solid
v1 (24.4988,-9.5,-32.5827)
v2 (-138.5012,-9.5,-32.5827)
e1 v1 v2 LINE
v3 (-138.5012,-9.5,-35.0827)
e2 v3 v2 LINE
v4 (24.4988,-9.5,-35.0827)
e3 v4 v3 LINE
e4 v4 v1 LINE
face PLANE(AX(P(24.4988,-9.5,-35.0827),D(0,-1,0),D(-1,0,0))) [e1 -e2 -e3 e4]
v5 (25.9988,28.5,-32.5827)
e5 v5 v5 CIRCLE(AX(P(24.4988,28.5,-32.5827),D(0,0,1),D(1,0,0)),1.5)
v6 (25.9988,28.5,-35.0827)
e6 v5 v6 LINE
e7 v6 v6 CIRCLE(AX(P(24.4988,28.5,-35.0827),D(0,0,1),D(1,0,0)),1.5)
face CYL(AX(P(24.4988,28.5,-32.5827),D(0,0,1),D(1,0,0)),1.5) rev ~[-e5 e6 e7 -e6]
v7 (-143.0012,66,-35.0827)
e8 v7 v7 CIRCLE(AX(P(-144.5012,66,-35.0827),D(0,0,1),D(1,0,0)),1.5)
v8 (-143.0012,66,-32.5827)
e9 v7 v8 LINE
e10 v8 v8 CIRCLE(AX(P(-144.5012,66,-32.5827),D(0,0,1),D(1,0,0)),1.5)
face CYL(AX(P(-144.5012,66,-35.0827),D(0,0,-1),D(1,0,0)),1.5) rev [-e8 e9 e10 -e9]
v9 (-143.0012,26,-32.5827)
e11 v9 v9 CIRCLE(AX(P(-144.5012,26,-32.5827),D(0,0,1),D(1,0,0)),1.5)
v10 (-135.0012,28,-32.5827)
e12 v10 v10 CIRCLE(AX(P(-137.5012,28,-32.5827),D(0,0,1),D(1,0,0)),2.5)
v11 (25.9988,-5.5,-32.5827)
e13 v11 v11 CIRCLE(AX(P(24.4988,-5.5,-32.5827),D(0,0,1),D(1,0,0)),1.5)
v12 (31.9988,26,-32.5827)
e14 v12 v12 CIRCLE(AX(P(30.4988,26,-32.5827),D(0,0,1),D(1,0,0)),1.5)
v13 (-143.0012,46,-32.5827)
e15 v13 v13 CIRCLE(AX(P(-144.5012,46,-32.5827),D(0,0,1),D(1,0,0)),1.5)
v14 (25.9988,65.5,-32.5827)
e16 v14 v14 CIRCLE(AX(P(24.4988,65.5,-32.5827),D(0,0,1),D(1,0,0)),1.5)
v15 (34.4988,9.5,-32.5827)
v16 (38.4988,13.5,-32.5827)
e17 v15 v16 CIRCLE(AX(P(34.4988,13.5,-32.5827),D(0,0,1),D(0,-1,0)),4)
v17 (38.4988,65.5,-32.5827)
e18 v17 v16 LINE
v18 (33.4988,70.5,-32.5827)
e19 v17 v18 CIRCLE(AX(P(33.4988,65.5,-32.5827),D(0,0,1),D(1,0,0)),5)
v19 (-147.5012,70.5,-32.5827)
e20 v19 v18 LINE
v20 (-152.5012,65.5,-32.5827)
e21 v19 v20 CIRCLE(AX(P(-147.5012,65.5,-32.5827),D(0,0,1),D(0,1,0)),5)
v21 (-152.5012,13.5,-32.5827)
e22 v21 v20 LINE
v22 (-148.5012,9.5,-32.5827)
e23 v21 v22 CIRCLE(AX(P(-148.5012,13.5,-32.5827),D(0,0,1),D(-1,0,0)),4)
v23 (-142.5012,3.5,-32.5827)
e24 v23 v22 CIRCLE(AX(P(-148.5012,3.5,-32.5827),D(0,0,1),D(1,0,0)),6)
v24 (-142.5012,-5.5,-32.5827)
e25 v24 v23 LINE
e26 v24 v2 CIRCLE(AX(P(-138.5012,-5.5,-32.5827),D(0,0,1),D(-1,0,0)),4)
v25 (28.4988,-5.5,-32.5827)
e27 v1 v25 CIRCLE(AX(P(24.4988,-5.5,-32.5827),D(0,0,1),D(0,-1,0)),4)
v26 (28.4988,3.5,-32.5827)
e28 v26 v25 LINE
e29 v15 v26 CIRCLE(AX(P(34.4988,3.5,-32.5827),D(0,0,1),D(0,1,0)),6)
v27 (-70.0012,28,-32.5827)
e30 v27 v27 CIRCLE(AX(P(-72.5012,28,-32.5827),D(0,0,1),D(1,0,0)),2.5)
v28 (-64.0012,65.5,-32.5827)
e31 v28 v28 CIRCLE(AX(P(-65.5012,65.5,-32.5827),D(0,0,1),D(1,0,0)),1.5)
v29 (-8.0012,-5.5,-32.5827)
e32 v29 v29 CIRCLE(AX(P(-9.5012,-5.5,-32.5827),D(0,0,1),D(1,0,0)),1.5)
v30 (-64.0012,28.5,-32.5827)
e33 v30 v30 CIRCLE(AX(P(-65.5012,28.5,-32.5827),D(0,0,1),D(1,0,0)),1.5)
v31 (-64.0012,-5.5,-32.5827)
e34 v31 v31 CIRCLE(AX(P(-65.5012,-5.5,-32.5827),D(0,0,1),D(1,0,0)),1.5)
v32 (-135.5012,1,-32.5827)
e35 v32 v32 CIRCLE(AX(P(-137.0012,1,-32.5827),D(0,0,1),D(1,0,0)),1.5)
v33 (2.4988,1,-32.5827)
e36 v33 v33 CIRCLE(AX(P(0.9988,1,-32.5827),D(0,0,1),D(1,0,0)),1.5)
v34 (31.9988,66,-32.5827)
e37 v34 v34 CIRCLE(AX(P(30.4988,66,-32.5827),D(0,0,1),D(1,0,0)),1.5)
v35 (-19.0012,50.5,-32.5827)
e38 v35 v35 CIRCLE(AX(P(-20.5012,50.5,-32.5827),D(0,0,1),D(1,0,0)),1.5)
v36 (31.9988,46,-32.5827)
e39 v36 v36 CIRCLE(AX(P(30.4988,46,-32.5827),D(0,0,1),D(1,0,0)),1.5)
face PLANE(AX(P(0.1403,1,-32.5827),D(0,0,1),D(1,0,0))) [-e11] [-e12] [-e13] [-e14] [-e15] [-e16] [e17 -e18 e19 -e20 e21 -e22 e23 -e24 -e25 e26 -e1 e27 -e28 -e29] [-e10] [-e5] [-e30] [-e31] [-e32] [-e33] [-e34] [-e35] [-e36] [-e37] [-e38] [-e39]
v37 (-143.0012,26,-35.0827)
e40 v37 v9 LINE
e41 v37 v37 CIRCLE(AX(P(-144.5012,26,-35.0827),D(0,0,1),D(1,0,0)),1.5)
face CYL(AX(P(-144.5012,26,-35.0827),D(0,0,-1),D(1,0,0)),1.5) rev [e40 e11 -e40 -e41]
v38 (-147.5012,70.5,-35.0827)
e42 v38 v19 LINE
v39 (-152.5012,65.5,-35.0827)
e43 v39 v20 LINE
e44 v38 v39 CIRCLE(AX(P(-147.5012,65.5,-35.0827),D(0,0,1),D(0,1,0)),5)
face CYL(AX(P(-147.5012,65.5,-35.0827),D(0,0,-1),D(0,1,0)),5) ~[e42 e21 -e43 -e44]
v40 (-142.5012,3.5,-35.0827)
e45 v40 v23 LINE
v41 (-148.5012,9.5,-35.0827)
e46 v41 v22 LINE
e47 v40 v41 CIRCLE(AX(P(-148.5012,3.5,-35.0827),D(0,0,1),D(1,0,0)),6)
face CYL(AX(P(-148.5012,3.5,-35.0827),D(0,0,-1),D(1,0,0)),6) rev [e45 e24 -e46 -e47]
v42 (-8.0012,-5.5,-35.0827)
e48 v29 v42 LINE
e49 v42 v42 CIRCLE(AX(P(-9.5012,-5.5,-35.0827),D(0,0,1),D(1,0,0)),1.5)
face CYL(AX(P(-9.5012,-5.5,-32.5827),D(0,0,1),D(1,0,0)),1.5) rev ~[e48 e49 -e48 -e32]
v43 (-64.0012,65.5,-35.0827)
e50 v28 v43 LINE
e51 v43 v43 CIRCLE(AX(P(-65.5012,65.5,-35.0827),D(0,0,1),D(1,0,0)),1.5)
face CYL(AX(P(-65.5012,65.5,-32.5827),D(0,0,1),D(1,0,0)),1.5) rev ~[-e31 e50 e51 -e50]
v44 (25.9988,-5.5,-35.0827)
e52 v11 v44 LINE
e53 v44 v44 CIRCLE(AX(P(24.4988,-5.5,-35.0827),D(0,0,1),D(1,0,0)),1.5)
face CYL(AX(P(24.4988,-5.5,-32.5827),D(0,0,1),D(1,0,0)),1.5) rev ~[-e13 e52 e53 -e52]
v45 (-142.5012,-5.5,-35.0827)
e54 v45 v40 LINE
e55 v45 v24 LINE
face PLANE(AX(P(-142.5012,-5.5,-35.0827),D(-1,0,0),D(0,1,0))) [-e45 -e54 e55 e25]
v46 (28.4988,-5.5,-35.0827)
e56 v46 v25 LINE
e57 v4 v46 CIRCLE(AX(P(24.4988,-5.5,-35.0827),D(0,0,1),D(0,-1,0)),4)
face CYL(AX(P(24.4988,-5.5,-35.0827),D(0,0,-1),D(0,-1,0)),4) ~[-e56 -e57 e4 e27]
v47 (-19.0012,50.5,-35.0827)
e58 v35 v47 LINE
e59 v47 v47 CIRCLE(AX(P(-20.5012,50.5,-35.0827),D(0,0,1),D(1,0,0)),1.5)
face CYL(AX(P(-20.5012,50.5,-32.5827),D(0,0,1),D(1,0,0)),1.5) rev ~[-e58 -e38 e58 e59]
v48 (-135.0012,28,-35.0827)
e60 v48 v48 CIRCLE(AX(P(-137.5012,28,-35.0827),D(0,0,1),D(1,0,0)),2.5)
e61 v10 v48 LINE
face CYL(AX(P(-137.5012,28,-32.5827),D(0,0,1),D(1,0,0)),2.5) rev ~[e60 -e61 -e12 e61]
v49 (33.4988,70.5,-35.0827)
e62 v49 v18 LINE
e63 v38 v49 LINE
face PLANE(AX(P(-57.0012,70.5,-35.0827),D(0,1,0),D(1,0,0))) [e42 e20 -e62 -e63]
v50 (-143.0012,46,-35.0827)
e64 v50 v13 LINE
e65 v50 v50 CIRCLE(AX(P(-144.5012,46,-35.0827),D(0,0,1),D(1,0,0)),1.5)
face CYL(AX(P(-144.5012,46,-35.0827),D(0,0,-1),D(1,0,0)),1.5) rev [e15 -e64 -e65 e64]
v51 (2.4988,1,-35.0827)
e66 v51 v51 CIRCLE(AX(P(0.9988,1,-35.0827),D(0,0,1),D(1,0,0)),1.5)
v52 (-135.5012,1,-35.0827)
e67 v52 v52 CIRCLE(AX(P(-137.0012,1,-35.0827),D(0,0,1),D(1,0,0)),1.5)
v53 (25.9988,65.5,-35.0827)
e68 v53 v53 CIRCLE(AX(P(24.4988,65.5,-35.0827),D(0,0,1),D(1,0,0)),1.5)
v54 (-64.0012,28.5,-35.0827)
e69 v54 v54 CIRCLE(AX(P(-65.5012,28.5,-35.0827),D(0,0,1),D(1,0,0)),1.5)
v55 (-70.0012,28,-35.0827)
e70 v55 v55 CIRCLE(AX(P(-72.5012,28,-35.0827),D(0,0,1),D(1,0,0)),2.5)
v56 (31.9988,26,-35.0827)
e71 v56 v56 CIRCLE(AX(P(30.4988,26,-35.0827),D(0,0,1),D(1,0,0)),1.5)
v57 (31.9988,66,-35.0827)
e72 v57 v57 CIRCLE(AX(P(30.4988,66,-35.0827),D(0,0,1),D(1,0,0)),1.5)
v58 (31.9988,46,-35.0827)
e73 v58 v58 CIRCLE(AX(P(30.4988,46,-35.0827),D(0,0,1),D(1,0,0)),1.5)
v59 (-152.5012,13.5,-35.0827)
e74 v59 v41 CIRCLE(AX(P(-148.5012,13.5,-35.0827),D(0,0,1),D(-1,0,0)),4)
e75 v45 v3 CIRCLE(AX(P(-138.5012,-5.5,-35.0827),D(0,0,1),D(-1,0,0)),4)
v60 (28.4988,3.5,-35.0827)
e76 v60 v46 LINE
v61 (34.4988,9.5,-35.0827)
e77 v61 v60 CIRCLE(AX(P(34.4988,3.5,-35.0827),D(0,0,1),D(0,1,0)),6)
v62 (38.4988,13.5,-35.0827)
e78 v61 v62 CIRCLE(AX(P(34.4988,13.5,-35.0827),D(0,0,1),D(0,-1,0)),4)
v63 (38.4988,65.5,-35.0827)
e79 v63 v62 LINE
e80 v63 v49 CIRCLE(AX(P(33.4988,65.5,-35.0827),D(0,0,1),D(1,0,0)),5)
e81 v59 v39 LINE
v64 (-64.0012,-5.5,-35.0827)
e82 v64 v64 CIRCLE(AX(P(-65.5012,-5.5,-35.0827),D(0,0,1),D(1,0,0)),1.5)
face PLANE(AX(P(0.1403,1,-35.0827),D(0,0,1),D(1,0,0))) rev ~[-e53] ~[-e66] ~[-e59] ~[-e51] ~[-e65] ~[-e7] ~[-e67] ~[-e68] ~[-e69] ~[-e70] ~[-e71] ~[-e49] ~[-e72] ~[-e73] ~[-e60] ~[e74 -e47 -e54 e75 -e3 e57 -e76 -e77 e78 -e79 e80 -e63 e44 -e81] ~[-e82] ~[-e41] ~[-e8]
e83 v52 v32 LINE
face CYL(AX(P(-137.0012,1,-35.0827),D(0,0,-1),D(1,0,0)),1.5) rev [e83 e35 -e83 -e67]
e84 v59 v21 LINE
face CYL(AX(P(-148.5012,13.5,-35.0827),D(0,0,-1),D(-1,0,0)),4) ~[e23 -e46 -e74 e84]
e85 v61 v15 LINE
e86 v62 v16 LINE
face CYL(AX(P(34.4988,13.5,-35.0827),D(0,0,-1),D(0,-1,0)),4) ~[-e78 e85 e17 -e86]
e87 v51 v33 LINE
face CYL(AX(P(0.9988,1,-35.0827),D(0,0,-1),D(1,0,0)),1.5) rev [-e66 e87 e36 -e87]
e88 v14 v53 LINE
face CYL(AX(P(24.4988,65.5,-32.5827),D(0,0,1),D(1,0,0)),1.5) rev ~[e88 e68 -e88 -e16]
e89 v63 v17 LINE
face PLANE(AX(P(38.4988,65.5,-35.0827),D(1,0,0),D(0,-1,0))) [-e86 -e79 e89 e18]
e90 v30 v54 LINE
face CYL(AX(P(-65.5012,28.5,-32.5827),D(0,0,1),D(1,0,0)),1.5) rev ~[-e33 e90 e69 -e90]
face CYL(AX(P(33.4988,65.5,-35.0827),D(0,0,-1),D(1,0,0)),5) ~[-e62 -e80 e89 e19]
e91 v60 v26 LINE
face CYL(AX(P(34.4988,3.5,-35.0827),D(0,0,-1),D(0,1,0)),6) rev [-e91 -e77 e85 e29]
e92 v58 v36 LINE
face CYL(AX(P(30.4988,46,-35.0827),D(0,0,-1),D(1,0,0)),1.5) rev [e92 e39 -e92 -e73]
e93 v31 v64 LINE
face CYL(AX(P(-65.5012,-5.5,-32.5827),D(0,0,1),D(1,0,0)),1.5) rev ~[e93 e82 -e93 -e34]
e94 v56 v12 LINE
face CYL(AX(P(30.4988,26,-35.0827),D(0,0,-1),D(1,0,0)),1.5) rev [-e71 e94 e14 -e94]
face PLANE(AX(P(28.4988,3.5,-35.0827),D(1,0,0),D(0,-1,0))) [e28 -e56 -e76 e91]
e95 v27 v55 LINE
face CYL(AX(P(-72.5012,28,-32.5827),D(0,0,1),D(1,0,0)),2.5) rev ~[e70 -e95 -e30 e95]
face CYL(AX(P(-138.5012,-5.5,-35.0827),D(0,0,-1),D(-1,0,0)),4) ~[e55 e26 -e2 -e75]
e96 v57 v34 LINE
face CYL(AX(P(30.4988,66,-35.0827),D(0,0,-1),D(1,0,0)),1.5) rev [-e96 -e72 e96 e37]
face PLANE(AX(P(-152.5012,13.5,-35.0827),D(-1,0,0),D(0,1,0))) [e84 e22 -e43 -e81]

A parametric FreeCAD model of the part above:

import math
import FreeCAD as App
import Part
import Sketcher

V = App.Vector

doc = App.newDocument("Part")
params = doc.addObject("Spreadsheet::Sheet", "Params")
for row, (alias, value) in enumerate([
    ("sketch1_radius", "5 mm"),
    ("sketch1_diameter", "3 mm"),
    ("sketch1_radius2", "4 mm"),
    ("sketch1_radius3", "6 mm"),
    ("sketch1_width", "181 mm"),
    ("pad1_length", "2.5 mm"),
    ("sketch2_diameter", "5 mm"),
    ("sketch2_diameter2", "3 mm"),
    ("pocket1_length", "10 mm"),
], start=1):
    params.set(f"A{row}", alias)
    params.set(f"B{row}", "=" + value)
    params.setAlias(f"B{row}", alias)

body = doc.addObject("PartDesign::Body", "Body")

# Sketch on XY plane
sketch1 = body.newObject("Sketcher::SketchObject", "Sketch")
sketch1.AttachmentSupport = (doc.getObject("XY_Plane"), [""])
sketch1.MapMode = "FlatFace"
sketch1.AttachmentOffset = App.Placement(V(0, 0, -35.0827), App.Rotation())
sketch1.addGeometry([
    Part.LineSegment(V(33.5, 70.5, 0), V(-147.5, 70.5, 0)),  # 0
    Part.ArcOfCircle(Part.Circle(V(-147.5, 65.5, 0), V(0, 0, 1), 5), math.radians(90), math.radians(180)),  # 1
    Part.LineSegment(V(-152.5, 65.5, 0), V(-152.5, 13.5, 0)),  # 2
    Part.ArcOfCircle(Part.Circle(V(-148.5, 13.5, 0), V(0, 0, 1), 4), math.radians(180), math.radians(270)),  # 3
    Part.ArcOfCircle(Part.Circle(V(-148.5, 3.5, 0), V(0, 0, 1), 6), math.radians(0), math.radians(90)),  # 4
    Part.LineSegment(V(-142.5, 3.5, 0), V(-142.5, -5.5, 0)),  # 5
    Part.ArcOfCircle(Part.Circle(V(-138.5, -5.5, 0), V(0, 0, 1), 4), math.radians(180), math.radians(270)),  # 6
    Part.LineSegment(V(-138.5, -9.5, 0), V(24.5, -9.5, 0)),  # 7
    Part.ArcOfCircle(Part.Circle(V(24.5, -5.5, 0), V(0, 0, 1), 4), math.radians(-90), math.radians(0)),  # 8
    Part.LineSegment(V(28.5, -5.5, 0), V(28.5, 3.5, 0)),  # 9
    Part.ArcOfCircle(Part.Circle(V(34.5, 3.5, 0), V(0, 0, 1), 6), math.radians(90), math.radians(180)),  # 10
    Part.ArcOfCircle(Part.Circle(V(34.5, 13.5, 0), V(0, 0, 1), 4), math.radians(-90), math.radians(0)),  # 11
    Part.LineSegment(V(38.5, 13.5, 0), V(38.5, 65.5, 0)),  # 12
    Part.ArcOfCircle(Part.Circle(V(33.5, 65.5, 0), V(0, 0, 1), 5), math.radians(0), math.radians(90)),  # 13
    Part.Circle(V(1, 1, 0), V(0, 0, 1), 1.5),  # 14
    Part.Circle(V(30.5, 66, 0), V(0, 0, 1), 1.5),  # 15
    Part.Circle(V(30.5, 26, 0), V(0, 0, 1), 1.5),  # 16
    Part.Circle(V(30.5, 46, 0), V(0, 0, 1), 1.5),  # 17
    Part.Circle(V(-144.5, 66, 0), V(0, 0, 1), 1.5),  # 18
    Part.Circle(V(-137, 1, 0), V(0, 0, 1), 1.5),  # 19
    Part.Circle(V(-144.5, 26, 0), V(0, 0, 1), 1.5),  # 20
    Part.Circle(V(-144.5, 46, 0), V(0, 0, 1), 1.5),  # 21
], False)
sketch1.addConstraint([
    Sketcher.Constraint("Tangent", 0, 2, 1, 1),
    Sketcher.Constraint("Tangent", 1, 2, 2, 1),
    Sketcher.Constraint("Tangent", 2, 2, 3, 1),
    Sketcher.Constraint("Tangent", 3, 2, 4, 2),
    Sketcher.Constraint("Tangent", 4, 1, 5, 1),
    Sketcher.Constraint("Tangent", 5, 2, 6, 1),
    Sketcher.Constraint("Tangent", 6, 2, 7, 1),
    Sketcher.Constraint("Tangent", 7, 2, 8, 1),
    Sketcher.Constraint("Tangent", 8, 2, 9, 1),
    Sketcher.Constraint("Tangent", 9, 2, 10, 2),
    Sketcher.Constraint("Tangent", 10, 1, 11, 1),
    Sketcher.Constraint("Tangent", 11, 2, 12, 1),
    Sketcher.Constraint("Tangent", 12, 2, 13, 1),
    Sketcher.Constraint("Tangent", 13, 2, 0, 1),
    Sketcher.Constraint("Horizontal", 0),
    Sketcher.Constraint("Vertical", 2),
    Sketcher.Constraint("Vertical", 5),
    Sketcher.Constraint("Horizontal", 7),
    Sketcher.Constraint("Vertical", 9),
    Sketcher.Constraint("Vertical", 12),
    Sketcher.Constraint("Equal", 3, 6),
    Sketcher.Constraint("Equal", 6, 8),
    Sketcher.Constraint("Equal", 4, 10),
    Sketcher.Constraint("Equal", 8, 11),
    Sketcher.Constraint("Equal", 1, 13),
    Sketcher.Constraint("Equal", 14, 15),
    Sketcher.Constraint("Equal", 15, 16),
    Sketcher.Constraint("Equal", 16, 17),
    Sketcher.Constraint("Equal", 17, 18),
    Sketcher.Constraint("Equal", 18, 19),
    Sketcher.Constraint("Equal", 19, 20),
    Sketcher.Constraint("Equal", 20, 21),
    Sketcher.Constraint("Horizontal", 4, 3, 10, 3),
    Sketcher.Constraint("Horizontal", 15, 3, 18, 3),
    Sketcher.Constraint("Horizontal", 14, 3, 19, 3),
    Sketcher.Constraint("Horizontal", 16, 3, 20, 3),
    Sketcher.Constraint("Horizontal", 17, 3, 21, 3),
    Sketcher.Constraint("Vertical", 3, 3, 4, 3),
    Sketcher.Constraint("Vertical", 10, 3, 11, 3),
    Sketcher.Constraint("Vertical", 15, 3, 16, 3),
    Sketcher.Constraint("Vertical", 16, 3, 17, 3),
    Sketcher.Constraint("Vertical", 18, 3, 20, 3),
    Sketcher.Constraint("Vertical", 20, 3, 21, 3),
    Sketcher.Constraint("Radius", 1, 5.0),
    Sketcher.Constraint("Diameter", 14, 3.0),
    Sketcher.Constraint("DistanceY", -1, 1, 14, 3, 1.0),
    Sketcher.Constraint("Radius", 3, 4.0),
    Sketcher.Constraint("Radius", 4, 6.0),
    Sketcher.Constraint("DistanceX", 0, 2, 0, 1, 181.0),
    Sketcher.Constraint("DistanceY", 2, 2, 2, 1, 52.0),
    Sketcher.Constraint("DistanceY", 5, 2, 5, 1, 9.0),
    Sketcher.Constraint("DistanceY", -1, 1, 15, 3, 66.0),
    Sketcher.Constraint("DistanceY", -1, 1, 16, 3, 26.0),
    Sketcher.Constraint("DistanceY", -1, 1, 17, 3, 46.0),
    Sketcher.Constraint("DistanceX", 15, 3, 13, 3, 3.0),
    Sketcher.Constraint("DistanceX", 1, 3, 18, 3, 3.0),
    Sketcher.Constraint("DistanceY", -1, 1, 1, 3, 65.5),
    Sketcher.Constraint("DistanceX", 14, 3, 8, 3, 23.5),
    Sketcher.Constraint("DistanceX", 6, 3, 19, 3, 1.5),
    Sketcher.Constraint("DistanceX", 1, 3, -1, 1, 147.5012),
])
sketch1.setExpression("Constraints[43]", "Params.sketch1_radius")
sketch1.setExpression("Constraints[44]", "Params.sketch1_diameter")
sketch1.setExpression("Constraints[46]", "Params.sketch1_radius2")
sketch1.setExpression("Constraints[47]", "Params.sketch1_radius3")
sketch1.setExpression("Constraints[48]", "Params.sketch1_width")
pad1 = body.newObject("PartDesign::Pad", "Pad")
pad1.Profile = sketch1
pad1.setExpression("Length", "Params.pad1_length")

# Sketch on XY plane
sketch2 = body.newObject("Sketcher::SketchObject", "Sketch001")
sketch2.AttachmentSupport = (doc.getObject("XY_Plane"), [""])
sketch2.MapMode = "FlatFace"
sketch2.AttachmentOffset = App.Placement(V(0, 0, -32.5827), App.Rotation())
sketch2.addGeometry([
    Part.Circle(V(-137.5, 28, 0), V(0, 0, 1), 2.5),  # 0
    Part.Circle(V(-72.5, 28, 0), V(0, 0, 1), 2.5),  # 1
    Part.Circle(V(24.5, -5.5, 0), V(0, 0, 1), 1.5),  # 2
    Part.Circle(V(-9.5, -5.5, 0), V(0, 0, 1), 1.5),  # 3
    Part.Circle(V(24.5, 28.5, 0), V(0, 0, 1), 1.5),  # 4
    Part.Circle(V(-65.5, 28.5, 0), V(0, 0, 1), 1.5),  # 5
    Part.Circle(V(-65.5, -5.5, 0), V(0, 0, 1), 1.5),  # 6
    Part.Circle(V(-65.5, 65.5, 0), V(0, 0, 1), 1.5),  # 7
    Part.Circle(V(-20.5, 50.5, 0), V(0, 0, 1), 1.5),  # 8
    Part.Circle(V(24.5, 65.5, 0), V(0, 0, 1), 1.5),  # 9
], False)
sketch2.addConstraint([
    Sketcher.Constraint("Equal", 0, 1),
    Sketcher.Constraint("Equal", 2, 3),
    Sketcher.Constraint("Equal", 3, 4),
    Sketcher.Constraint("Equal", 4, 5),
    Sketcher.Constraint("Equal", 5, 6),
    Sketcher.Constraint("Equal", 6, 7),
    Sketcher.Constraint("Equal", 7, 8),
    Sketcher.Constraint("Equal", 8, 9),
    Sketcher.Constraint("Horizontal", 0, 3, 1, 3),
    Sketcher.Constraint("Horizontal", 2, 3, 3, 3),
    Sketcher.Constraint("Horizontal", 4, 3, 5, 3),
    Sketcher.Constraint("Horizontal", 3, 3, 6, 3),
    Sketcher.Constraint("Horizontal", 7, 3, 9, 3),
    Sketcher.Constraint("Vertical", 2, 3, 4, 3),
    Sketcher.Constraint("Vertical", 5, 3, 6, 3),
    Sketcher.Constraint("Vertical", 6, 3, 7, 3),
    Sketcher.Constraint("Vertical", 4, 3, 9, 3),
    Sketcher.Constraint("Diameter", 0, 5.0),
    Sketcher.Constraint("Diameter", 2, 3.0),
    Sketcher.Constraint("DistanceY", -1, 1, 0, 3, 28.0),
    Sketcher.Constraint("DistanceX", 0, 3, 1, 3, 65.0),
    Sketcher.Constraint("DistanceX", 1, 3, 2, 3, 97.0),
    Sketcher.Constraint("DistanceX", 3, 3, 2, 3, 34.0),
    Sketcher.Constraint("DistanceY", 2, 3, 4, 3, 34.0),
    Sketcher.Constraint("DistanceX", 1, 3, 5, 3, 7.0),
    Sketcher.Constraint("DistanceY", 5, 3, 7, 3, 37.0),
    Sketcher.Constraint("DistanceX", 7, 3, 8, 3, 45.0),
    Sketcher.Constraint("DistanceY", 8, 3, 7, 3, 15.0),
    Sketcher.Constraint("DistanceY", 2, 3, -1, 1, 5.5),
    Sketcher.Constraint("DistanceX", 0, 3, -1, 1, 137.5012),
])
sketch2.setExpression("Constraints[17]", "Params.sketch2_diameter")
sketch2.setExpression("Constraints[18]", "Params.sketch2_diameter2")
pocket1 = body.newObject("PartDesign::Pocket", "Pocket")
pocket1.Profile = sketch2
pocket1.setExpression("Length", "Params.pocket1_length")

doc.recompute()
